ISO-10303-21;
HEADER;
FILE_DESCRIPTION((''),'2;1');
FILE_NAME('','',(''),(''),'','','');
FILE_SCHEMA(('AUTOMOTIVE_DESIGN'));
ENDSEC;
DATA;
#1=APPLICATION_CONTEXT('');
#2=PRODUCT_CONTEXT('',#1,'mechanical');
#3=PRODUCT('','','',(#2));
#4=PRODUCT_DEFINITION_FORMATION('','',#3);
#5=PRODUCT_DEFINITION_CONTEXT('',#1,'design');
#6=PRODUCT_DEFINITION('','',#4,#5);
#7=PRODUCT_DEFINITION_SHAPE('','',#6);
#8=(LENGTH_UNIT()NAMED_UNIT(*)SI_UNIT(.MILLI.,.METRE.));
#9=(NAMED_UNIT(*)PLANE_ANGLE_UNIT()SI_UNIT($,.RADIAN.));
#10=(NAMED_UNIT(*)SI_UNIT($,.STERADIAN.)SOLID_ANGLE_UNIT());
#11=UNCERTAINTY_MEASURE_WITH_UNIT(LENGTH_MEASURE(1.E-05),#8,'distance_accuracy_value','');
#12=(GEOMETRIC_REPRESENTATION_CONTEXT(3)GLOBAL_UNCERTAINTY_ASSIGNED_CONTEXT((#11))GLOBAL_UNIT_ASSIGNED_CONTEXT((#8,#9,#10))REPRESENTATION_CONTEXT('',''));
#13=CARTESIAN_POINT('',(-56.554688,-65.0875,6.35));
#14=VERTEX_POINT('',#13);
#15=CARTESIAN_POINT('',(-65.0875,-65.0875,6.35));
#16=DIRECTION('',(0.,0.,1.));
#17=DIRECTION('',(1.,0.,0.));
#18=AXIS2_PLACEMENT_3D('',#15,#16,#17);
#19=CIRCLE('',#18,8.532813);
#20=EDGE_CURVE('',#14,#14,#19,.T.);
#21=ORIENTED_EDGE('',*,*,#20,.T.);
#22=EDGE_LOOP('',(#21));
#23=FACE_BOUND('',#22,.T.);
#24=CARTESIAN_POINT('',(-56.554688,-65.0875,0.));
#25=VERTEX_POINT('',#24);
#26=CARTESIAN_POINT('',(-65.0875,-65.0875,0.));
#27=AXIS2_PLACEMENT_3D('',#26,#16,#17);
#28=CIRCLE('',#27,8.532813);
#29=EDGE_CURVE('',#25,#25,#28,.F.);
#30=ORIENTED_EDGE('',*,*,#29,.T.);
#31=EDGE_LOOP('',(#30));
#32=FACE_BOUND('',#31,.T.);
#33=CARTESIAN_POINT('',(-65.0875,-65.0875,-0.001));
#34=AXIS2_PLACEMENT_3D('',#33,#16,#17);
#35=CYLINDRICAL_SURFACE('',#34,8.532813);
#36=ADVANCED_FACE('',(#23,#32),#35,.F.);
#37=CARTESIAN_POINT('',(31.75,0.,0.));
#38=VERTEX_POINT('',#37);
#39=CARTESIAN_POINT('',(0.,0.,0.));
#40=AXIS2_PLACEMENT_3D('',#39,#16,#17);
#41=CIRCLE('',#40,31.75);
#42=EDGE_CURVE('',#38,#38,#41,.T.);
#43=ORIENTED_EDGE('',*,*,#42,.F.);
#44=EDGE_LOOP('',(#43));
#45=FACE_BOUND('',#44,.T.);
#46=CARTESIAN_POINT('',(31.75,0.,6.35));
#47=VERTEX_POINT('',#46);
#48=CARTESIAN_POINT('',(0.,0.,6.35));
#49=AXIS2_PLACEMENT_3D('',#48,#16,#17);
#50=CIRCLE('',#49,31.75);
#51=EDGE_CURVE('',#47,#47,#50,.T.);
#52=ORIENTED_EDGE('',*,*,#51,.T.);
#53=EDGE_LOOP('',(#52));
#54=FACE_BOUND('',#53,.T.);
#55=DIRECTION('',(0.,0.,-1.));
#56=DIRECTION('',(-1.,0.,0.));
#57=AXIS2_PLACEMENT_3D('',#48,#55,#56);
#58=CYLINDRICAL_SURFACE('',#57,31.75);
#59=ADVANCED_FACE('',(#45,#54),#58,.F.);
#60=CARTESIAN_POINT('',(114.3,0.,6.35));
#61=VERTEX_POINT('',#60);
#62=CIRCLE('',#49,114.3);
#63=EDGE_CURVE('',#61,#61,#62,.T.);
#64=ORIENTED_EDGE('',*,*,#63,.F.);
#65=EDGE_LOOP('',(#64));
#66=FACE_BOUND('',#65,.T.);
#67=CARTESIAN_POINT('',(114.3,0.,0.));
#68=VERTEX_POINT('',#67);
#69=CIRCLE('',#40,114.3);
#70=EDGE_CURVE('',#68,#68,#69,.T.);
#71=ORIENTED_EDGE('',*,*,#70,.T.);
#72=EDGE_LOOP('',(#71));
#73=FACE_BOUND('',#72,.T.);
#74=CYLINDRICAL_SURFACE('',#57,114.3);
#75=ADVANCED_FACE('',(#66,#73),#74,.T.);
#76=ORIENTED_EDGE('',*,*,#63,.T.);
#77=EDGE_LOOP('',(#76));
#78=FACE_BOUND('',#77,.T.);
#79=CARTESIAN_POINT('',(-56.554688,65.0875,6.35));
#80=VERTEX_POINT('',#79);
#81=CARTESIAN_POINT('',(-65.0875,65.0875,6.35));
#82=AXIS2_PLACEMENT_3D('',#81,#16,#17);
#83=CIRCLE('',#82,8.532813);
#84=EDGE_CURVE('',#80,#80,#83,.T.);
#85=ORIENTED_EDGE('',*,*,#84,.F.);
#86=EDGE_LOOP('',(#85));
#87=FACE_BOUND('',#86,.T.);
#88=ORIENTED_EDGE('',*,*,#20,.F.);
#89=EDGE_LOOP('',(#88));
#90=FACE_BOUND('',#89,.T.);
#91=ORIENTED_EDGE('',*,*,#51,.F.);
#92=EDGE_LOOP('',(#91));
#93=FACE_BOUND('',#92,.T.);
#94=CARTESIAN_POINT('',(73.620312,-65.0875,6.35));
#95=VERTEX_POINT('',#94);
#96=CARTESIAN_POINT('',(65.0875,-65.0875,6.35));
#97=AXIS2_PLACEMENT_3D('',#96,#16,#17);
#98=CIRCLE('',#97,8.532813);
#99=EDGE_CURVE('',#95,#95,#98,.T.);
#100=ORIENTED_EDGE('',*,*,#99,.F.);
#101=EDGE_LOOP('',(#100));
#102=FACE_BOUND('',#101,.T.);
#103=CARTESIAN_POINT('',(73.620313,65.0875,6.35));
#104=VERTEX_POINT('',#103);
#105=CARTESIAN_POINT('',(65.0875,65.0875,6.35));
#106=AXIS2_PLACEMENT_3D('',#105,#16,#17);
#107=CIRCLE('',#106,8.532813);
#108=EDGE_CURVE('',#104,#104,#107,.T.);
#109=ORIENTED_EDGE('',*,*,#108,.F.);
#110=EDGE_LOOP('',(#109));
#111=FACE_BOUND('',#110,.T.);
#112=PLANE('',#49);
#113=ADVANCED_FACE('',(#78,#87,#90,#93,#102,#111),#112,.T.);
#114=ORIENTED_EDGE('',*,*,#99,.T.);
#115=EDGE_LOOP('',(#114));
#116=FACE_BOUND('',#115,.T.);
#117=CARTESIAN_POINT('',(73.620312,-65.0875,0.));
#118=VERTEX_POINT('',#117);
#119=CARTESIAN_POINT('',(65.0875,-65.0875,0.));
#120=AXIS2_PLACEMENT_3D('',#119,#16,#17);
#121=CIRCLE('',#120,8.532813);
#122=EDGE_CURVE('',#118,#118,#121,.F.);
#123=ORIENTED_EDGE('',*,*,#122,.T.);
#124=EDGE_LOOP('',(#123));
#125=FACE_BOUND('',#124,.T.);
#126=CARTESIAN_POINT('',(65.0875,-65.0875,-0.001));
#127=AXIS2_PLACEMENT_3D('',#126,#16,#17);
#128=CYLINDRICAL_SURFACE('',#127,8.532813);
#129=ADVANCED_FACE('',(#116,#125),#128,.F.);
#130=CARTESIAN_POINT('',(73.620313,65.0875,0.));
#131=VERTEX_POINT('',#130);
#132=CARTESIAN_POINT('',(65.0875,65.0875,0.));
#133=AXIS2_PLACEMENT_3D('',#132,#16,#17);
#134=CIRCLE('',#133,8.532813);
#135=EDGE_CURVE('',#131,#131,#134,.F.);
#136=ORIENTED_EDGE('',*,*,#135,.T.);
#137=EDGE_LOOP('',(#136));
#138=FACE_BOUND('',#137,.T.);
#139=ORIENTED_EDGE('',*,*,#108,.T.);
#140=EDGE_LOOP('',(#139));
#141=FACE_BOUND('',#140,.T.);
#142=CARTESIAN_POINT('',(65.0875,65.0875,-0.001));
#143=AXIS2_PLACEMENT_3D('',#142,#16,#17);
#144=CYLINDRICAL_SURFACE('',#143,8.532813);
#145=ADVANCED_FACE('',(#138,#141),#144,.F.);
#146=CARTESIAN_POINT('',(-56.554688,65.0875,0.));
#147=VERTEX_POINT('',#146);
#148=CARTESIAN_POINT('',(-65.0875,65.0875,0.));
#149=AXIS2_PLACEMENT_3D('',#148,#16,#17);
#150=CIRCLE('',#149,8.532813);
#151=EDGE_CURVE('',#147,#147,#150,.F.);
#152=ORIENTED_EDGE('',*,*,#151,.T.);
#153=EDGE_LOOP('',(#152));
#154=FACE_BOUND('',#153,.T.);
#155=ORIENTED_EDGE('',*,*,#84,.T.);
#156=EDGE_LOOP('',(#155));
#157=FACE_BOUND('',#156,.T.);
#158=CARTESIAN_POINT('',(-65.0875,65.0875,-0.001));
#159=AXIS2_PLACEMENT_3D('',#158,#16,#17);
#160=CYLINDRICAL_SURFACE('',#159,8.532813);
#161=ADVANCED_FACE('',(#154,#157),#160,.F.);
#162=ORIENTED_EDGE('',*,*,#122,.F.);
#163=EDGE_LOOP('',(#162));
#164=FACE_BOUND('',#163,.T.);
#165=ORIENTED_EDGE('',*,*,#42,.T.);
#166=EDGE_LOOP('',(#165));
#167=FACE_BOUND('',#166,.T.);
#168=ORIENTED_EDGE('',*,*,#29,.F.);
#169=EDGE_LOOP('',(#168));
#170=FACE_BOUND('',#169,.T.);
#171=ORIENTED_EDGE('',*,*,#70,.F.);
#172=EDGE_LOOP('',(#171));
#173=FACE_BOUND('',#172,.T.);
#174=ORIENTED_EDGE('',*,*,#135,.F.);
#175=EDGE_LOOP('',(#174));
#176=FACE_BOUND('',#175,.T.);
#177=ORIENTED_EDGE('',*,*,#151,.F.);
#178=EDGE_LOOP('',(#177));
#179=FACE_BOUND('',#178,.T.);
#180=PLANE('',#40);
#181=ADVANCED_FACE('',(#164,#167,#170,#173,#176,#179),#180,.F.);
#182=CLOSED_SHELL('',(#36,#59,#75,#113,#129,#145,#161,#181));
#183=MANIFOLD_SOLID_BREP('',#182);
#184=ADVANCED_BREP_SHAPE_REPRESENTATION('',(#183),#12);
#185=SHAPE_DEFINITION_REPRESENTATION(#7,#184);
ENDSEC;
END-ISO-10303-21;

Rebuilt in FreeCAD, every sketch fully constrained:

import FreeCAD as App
import Part
import Sketcher
Q = App.Units.Quantity

doc = App.newDocument("Part")
body = doc.addObject("PartDesign::Body", "Body")

# Sketch on XY plane
sketch1 = body.newObject("Sketcher::SketchObject", "Sketch")
sketch1.AttachmentSupport = (doc.getObject("XY_Plane"), [""])
sketch1.MapMode = "FlatFace"
sketch1.addGeometry(Part.Circle(App.Vector(0, 0, 0), App.Vector(0, 0, 1), 114), False)
sketch1.addGeometry(Part.Circle(App.Vector(0, 0, 0), App.Vector(0, 0, 1), 32), False)
sketch1.addConstraint(Sketcher.Constraint("Coincident", 0, 3, -1, 1))
sketch1.addConstraint(Sketcher.Constraint("Coincident", 1, 3, -1, 1))
sketch1.addConstraint(Sketcher.Constraint("Diameter", 0, Q("9 in")))
sketch1.addConstraint(Sketcher.Constraint("Diameter", 1, Q("2.5 in")))
pad1 = body.newObject("PartDesign::Pad", "Pad")
pad1.Profile = sketch1
pad1.Length = Q("0.25 in")

# Sketch on XY plane
sketch2 = body.newObject("Sketcher::SketchObject", "Sketch001")
sketch2.AttachmentSupport = (doc.getObject("XY_Plane"), [""])
sketch2.MapMode = "FlatFace"
sketch2.AttachmentOffset = App.Placement(App.Vector(0, 0, 0.25 * 25.4), App.Rotation())
sketch2.addGeometry(Part.Circle(App.Vector(-65, -65, 0), App.Vector(0, 0, 1), 9), False)
sketch2.addConstraint(Sketcher.Constraint("Diameter", 0, Q("0.671875 in")))
sketch2.addConstraint(Sketcher.Constraint("DistanceX", 0, 3, -1, 1, Q("2.5625 in")))
sketch2.addConstraint(Sketcher.Constraint("DistanceY", 0, 3, -1, 1, Q("2.5625 in")))
pocket1 = body.newObject("PartDesign::Pocket", "Pocket")
pocket1.Profile = sketch2
pocket1.Type = "UpToFirst"

# Sketch on XY plane
sketch3 = body.newObject("Sketcher::SketchObject", "Sketch002")
sketch3.AttachmentSupport = (doc.getObject("XY_Plane"), [""])
sketch3.MapMode = "FlatFace"
sketch3.AttachmentOffset = App.Placement(App.Vector(0, 0, 0.25 * 25.4), App.Rotation())
sketch3.addGeometry(Part.Circle(App.Vector(-65, 65, 0), App.Vector(0, 0, 1), 9), False)
sketch3.addConstraint(Sketcher.Constraint("Diameter", 0, Q("0.671875 in")))
sketch3.addConstraint(Sketcher.Constraint("DistanceX", 0, 3, -1, 1, Q("2.5625 in")))
sketch3.addConstraint(Sketcher.Constraint("DistanceY", -1, 1, 0, 3, Q("2.5625 in")))
pocket2 = body.newObject("PartDesign::Pocket", "Pocket001")
pocket2.Profile = sketch3
pocket2.Type = "UpToFirst"

# Sketch on XY plane
sketch4 = body.newObject("Sketcher::SketchObject", "Sketch003")
sketch4.AttachmentSupport = (doc.getObject("XY_Plane"), [""])
sketch4.MapMode = "FlatFace"
sketch4.AttachmentOffset = App.Placement(App.Vector(0, 0, 0.25 * 25.4), App.Rotation())
sketch4.addGeometry(Part.Circle(App.Vector(65, 65, 0), App.Vector(0, 0, 1), 9), False)
sketch4.addConstraint(Sketcher.Constraint("Diameter", 0, Q("0.671875 in")))
sketch4.addConstraint(Sketcher.Constraint("DistanceX", -1, 1, 0, 3, Q("2.5625 in")))
sketch4.addConstraint(Sketcher.Constraint("DistanceY", -1, 1, 0, 3, Q("2.5625 in")))
pocket3 = body.newObject("PartDesign::Pocket", "Pocket002")
pocket3.Profile = sketch4
pocket3.Type = "UpToFirst"

# Sketch on XY plane
sketch5 = body.newObject("Sketcher::SketchObject", "Sketch004")
sketch5.AttachmentSupport = (doc.getObject("XY_Plane"), [""])
sketch5.MapMode = "FlatFace"
sketch5.AttachmentOffset = App.Placement(App.Vector(0, 0, 0.25 * 25.4), App.Rotation())
sketch5.addGeometry(Part.Circle(App.Vector(65, -65, 0), App.Vector(0, 0, 1), 9), False)
sketch5.addConstraint(Sketcher.Constraint("Diameter", 0, Q("0.671875 in")))
sketch5.addConstraint(Sketcher.Constraint("DistanceX", -1, 1, 0, 3, Q("2.5625 in")))
sketch5.addConstraint(Sketcher.Constraint("DistanceY", 0, 3, -1, 1, Q("2.5625 in")))
pocket4 = body.newObject("PartDesign::Pocket", "Pocket003")
pocket4.Profile = sketch5
pocket4.Type = "UpToFirst"

doc.recompute()
